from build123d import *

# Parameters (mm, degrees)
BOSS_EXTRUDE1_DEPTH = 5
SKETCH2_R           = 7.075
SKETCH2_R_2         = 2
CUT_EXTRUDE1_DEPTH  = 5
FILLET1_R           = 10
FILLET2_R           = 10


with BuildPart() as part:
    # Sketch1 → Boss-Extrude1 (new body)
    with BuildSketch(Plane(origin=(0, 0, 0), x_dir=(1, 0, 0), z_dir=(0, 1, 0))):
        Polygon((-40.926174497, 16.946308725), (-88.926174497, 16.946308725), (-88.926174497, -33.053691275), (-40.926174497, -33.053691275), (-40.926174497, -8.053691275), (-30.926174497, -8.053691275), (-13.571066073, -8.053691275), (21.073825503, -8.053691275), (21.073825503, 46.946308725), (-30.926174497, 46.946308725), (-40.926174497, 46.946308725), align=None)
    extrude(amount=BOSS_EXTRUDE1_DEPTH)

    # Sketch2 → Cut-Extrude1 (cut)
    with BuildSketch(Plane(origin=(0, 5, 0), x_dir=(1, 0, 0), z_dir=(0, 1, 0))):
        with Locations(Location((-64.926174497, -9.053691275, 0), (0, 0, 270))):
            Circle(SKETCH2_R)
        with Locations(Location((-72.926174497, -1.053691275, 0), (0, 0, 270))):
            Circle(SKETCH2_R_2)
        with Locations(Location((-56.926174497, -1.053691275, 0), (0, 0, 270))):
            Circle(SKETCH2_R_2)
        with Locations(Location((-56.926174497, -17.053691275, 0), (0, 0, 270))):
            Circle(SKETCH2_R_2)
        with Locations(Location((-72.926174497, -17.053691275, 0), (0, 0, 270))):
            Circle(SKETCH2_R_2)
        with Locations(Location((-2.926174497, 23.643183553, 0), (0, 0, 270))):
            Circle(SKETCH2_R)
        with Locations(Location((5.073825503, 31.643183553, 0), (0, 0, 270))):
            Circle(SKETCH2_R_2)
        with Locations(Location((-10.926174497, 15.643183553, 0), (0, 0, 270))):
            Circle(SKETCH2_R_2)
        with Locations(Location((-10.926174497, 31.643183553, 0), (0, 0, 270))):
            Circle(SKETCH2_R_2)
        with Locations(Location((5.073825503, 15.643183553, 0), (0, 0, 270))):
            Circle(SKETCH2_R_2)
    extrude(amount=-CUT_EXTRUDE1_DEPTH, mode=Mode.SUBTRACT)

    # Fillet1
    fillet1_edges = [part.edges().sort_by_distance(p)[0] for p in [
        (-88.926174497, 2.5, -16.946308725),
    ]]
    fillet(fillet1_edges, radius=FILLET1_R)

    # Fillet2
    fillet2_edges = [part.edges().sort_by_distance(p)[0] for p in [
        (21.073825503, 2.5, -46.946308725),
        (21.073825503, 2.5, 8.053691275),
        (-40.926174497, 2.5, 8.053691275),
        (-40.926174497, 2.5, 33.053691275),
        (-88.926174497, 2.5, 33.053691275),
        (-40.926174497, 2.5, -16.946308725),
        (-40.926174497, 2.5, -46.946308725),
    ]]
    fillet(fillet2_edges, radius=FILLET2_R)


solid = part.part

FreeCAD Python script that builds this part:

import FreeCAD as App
import Part
import Sketcher

V = App.Vector


def edges_at(feature, points):
    """Names of the edges that pass closest to the given points."""
    edges = feature.Shape.Edges
    near = lambda p: min(range(len(edges)), key=lambda i: edges[i].distToShape(Part.Vertex(*p))[0])
    return sorted({f"Edge{near(p) + 1}" for p in points})


def add_polygon(sketch, points):
    """Adds a closed chain of lines whose ends are joined by coincident constraints."""
    first, n = sketch.GeometryCount, len(points)
    for a, b in zip(points, points[1:] + points[:1]):
        sketch.addGeometry(Part.LineSegment(App.Vector(*a, 0), App.Vector(*b, 0)), False)
    for i in range(n):
        sketch.addConstraint(Sketcher.Constraint("Coincident", first + i, 2, first + (i + 1) % n, 1))

doc = App.newDocument("Part")
body = doc.addObject("PartDesign::Body", "Body")

# Sketch on XZ plane
sketch1 = body.newObject("Sketcher::SketchObject", "Sketch")
sketch1.AttachmentSupport = (doc.getObject("XZ_Plane"), [""])
sketch1.MapMode = "FlatFace"
add_polygon(sketch1, [(-40.926174, -16.946309), (-88.926174, -16.946309), (-88.926174, 33.053691), (-40.926174, 33.053691), (-40.926174, 8.053691), (21.073826, 8.053691), (21.073826, -46.946309), (-40.926174, -46.946309)])  # lines 0-7
sketch1.addConstraint([
    Sketcher.Constraint("Horizontal", 0),
    Sketcher.Constraint("Vertical", 1),
    Sketcher.Constraint("Horizontal", 2),
    Sketcher.Constraint("Vertical", 3),
    Sketcher.Constraint("Horizontal", 4),
    Sketcher.Constraint("Vertical", 5),
    Sketcher.Constraint("Horizontal", 6),
    Sketcher.Constraint("Vertical", 7),
    Sketcher.Constraint("Vertical", 3, 2, 6, 2),
    Sketcher.Constraint("DistanceX", 0, 2, 0, 1, 48.0),
    Sketcher.Constraint("DistanceX", 4, 1, 4, 2, 62.0),
    Sketcher.Constraint("DistanceY", 1, 1, 1, 2, 50.0),
    Sketcher.Constraint("DistanceY", 3, 2, 3, 1, 25.0),
    Sketcher.Constraint("DistanceY", 5, 2, 5, 1, 55.0),
    Sketcher.Constraint("DistanceY", 0, 2, -1, 1, 16.946309),
    Sketcher.Constraint("DistanceX", 0, 2, -1, 1, 88.926174),
])
pad1 = body.newObject("PartDesign::Pad", "Pad")
pad1.Profile = sketch1
pad1.Length = 5
pad1.Reversed = True

# Sketch on XZ plane
sketch2 = body.newObject("Sketcher::SketchObject", "Sketch001")
sketch2.AttachmentSupport = (doc.getObject("XZ_Plane"), [""])
sketch2.MapMode = "FlatFace"
sketch2.AttachmentOffset = App.Placement(V(0, 0, -5), App.Rotation())
sketch2.addGeometry([
    Part.Circle(V(-64.926174, 9.053691, 0), V(0, 0, 1), 7.075),  # 0
    Part.Circle(V(-72.926174, 1.053691, 0), V(0, 0, 1), 2),  # 1
    Part.Circle(V(-56.926174, 1.053691, 0), V(0, 0, 1), 2),  # 2
    Part.Circle(V(-56.926174, 17.053691, 0), V(0, 0, 1), 2),  # 3
    Part.Circle(V(-72.926174, 17.053691, 0), V(0, 0, 1), 2),  # 4
    Part.Circle(V(-2.926174, -23.643184, 0), V(0, 0, 1), 7.075),  # 5
    Part.Circle(V(5.073826, -31.643184, 0), V(0, 0, 1), 2),  # 6
    Part.Circle(V(-10.926174, -15.643184, 0), V(0, 0, 1), 2),  # 7
    Part.Circle(V(-10.926174, -31.643184, 0), V(0, 0, 1), 2),  # 8
    Part.Circle(V(5.073826, -15.643184, 0), V(0, 0, 1), 2),  # 9
], False)
sketch2.addConstraint([
    Sketcher.Constraint("Equal", 1, 2),
    Sketcher.Constraint("Equal", 2, 3),
    Sketcher.Constraint("Equal", 3, 4),
    Sketcher.Constraint("Equal", 0, 5),
    Sketcher.Constraint("Equal", 4, 6),
    Sketcher.Constraint("Equal", 6, 7),
    Sketcher.Constraint("Equal", 7, 8),
    Sketcher.Constraint("Equal", 8, 9),
    Sketcher.Constraint("Horizontal", 1, 3, 2, 3),
    Sketcher.Constraint("Horizontal", 3, 3, 4, 3),
    Sketcher.Constraint("Horizontal", 6, 3, 8, 3),
    Sketcher.Constraint("Horizontal", 7, 3, 9, 3),
    Sketcher.Constraint("Vertical", 2, 3, 3, 3),
    Sketcher.Constraint("Vertical", 1, 3, 4, 3),
    Sketcher.Constraint("Vertical", 7, 3, 8, 3),
    Sketcher.Constraint("Vertical", 6, 3, 9, 3),
    Sketcher.Constraint("Diameter", 1, 4.0),
    Sketcher.Constraint("Diameter", 0, 14.15),
    Sketcher.Constraint("DistanceX", 1, 3, 0, 3, 8.0),
    Sketcher.Constraint("DistanceY", 1, 3, 0, 3, 8.0),
    Sketcher.Constraint("DistanceX", 0, 3, 2, 3, 8.0),
    Sketcher.Constraint("DistanceY", 0, 3, 3, 3, 8.0),
    Sketcher.Constraint("DistanceX", 2, 3, 5, 3, 54.0),
    Sketcher.Constraint("DistanceX", 5, 3, 6, 3, 8.0),
    Sketcher.Constraint("DistanceY", 6, 3, 5, 3, 8.0),
    Sketcher.Constraint("DistanceX", 7, 3, 5, 3, 8.0),
    Sketcher.Constraint("DistanceY", 5, 3, 7, 3, 8.0),
    Sketcher.Constraint("DistanceY", -1, 1, 0, 3, 9.053691),
    Sketcher.Constraint("DistanceX", 0, 3, -1, 1, 64.926174),
    Sketcher.Constraint("DistanceY", 5, 3, -1, 1, 23.643184),
])
pocket1 = body.newObject("PartDesign::Pocket", "Pocket")
pocket1.Profile = sketch2
pocket1.Length = 5
pocket1.Reversed = True
doc.recompute()

fillet = body.newObject("PartDesign::Fillet", "Fillet")
fillet.Base = (pocket1, edges_at(pocket1, [(-88.926, 2.5, -16.946)]))
fillet.Radius = 10
doc.recompute()

fillet2 = body.newObject("PartDesign::Fillet", "Fillet001")
fillet2.Base = (fillet, edges_at(fillet, [
    (21.074, 2.5, -46.946),
    (21.074, 2.5, 8.054),
    (-40.926, 2.5, 8.054),
    (-40.926, 2.5, 33.054),
    (-88.926, 2.5, 33.054),
    (-40.926, 2.5, -16.946),
    (-40.926, 2.5, -46.946),
]))
fillet2.Radius = 10

doc.recompute()
